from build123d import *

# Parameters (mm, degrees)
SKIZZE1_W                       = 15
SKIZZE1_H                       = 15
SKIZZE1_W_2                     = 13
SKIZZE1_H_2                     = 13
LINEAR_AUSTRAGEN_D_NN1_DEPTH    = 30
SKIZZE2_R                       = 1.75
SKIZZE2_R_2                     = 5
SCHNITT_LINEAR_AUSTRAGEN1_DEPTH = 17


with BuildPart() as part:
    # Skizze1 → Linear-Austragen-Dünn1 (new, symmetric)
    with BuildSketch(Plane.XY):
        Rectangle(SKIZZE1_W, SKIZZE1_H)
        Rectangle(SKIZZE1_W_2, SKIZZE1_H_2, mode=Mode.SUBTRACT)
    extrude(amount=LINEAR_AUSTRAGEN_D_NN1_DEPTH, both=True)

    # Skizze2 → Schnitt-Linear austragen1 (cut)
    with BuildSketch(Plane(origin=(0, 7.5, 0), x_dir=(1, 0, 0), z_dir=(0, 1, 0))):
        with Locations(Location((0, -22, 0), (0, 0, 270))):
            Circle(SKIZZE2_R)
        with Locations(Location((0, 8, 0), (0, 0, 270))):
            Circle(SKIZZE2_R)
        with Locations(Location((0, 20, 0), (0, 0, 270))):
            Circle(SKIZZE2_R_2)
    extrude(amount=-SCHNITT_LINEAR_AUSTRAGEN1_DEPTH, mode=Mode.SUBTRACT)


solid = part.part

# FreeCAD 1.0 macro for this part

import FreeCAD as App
import Part
import Sketcher
from FreeCAD import Vector

doc = App.newDocument("Part")
body = doc.addObject("PartDesign::Body", "Body")

sketch1 = body.newObject("Sketcher::SketchObject", "Sketch")
sketch1.AttachmentSupport = (doc.getObject("XY_Plane"), [""])
sketch1.MapMode = "FlatFace"
sketch1.addGeometry([
    Part.LineSegment(Vector(-8, 8, 0), Vector(-8, -8, 0)),
    Part.LineSegment(Vector(-8, -8, 0), Vector(8, -8, 0)),
    Part.LineSegment(Vector(8, -8, 0), Vector(8, 8, 0)),
    Part.LineSegment(Vector(8, 8, 0), Vector(-8, 8, 0)),
    Part.LineSegment(Vector(6, -6, 0), Vector(-6, -6, 0)),
    Part.LineSegment(Vector(-6, -6, 0), Vector(-6, 6, 0)),
    Part.LineSegment(Vector(-6, 6, 0), Vector(6, 6, 0)),
    Part.LineSegment(Vector(6, 6, 0), Vector(6, -6, 0)),
], False)
sketch1.addConstraint([
    Sketcher.Constraint("Coincident", 0, 2, 1, 1),
    Sketcher.Constraint("Coincident", 1, 2, 2, 1),
    Sketcher.Constraint("Coincident", 2, 2, 3, 1),
    Sketcher.Constraint("Coincident", 3, 2, 0, 1),
    Sketcher.Constraint("Coincident", 4, 2, 5, 1),
    Sketcher.Constraint("Coincident", 5, 2, 6, 1),
    Sketcher.Constraint("Coincident", 6, 2, 7, 1),
    Sketcher.Constraint("Coincident", 7, 2, 4, 1),
    Sketcher.Constraint("Vertical", 0),
    Sketcher.Constraint("Horizontal", 1),
    Sketcher.Constraint("Vertical", 2),
    Sketcher.Constraint("Horizontal", 3),
    Sketcher.Constraint("Horizontal", 4),
    Sketcher.Constraint("Vertical", 5),
    Sketcher.Constraint("Horizontal", 6),
    Sketcher.Constraint("Vertical", 7),
    Sketcher.Constraint("Symmetric", 0, 2, 2, 2, -1, 1),
    Sketcher.Constraint("Symmetric", 4, 2, 6, 2, -1, 1),
    Sketcher.Constraint("Equal", 3, 0),
    Sketcher.Constraint("Equal", 6, 5),
    Sketcher.Constraint("DistanceX", 1, 1, 1, 2, 15.0),
    Sketcher.Constraint("DistanceX", 4, 2, 4, 1, 13.0),
])
pad1 = body.newObject("PartDesign::Pad", "Pad")
pad1.Profile = sketch1
pad1.Length = 60
pad1.Midplane = True

sketch2 = body.newObject("Sketcher::SketchObject", "Sketch001")
sketch2.AttachmentSupport = (doc.getObject("XZ_Plane"), [""])
sketch2.MapMode = "FlatFace"
sketch2.AttachmentOffset = App.Placement(Vector(0, 0, -7.5), App.Rotation())
sketch2.addGeometry([
    Part.Circle(Vector(0, 22, 0), Vector(0, 0, 1), 1.8),
    Part.Circle(Vector(0, -8, 0), Vector(0, 0, 1), 1.8),
    Part.Circle(Vector(0, -20, 0), Vector(0, 0, 1), 5),
], False)
sketch2.addConstraint([
    Sketcher.Constraint("Equal", 0, 1),
    Sketcher.Constraint("PointOnObject", 0, 3, -2),
    Sketcher.Constraint("PointOnObject", 1, 3, -2),
    Sketcher.Constraint("PointOnObject", 2, 3, -2),
    Sketcher.Constraint("Diameter", 2, 10.0),
    Sketcher.Constraint("Diameter", 0, 3.5),
    Sketcher.Constraint("DistanceY", -1, 1, 0, 3, 22.0),
    Sketcher.Constraint("DistanceY", 1, 3, -1, 1, 8.0),
    Sketcher.Constraint("DistanceY", 2, 3, -1, 1, 20.0),
])
pocket1 = body.newObject("PartDesign::Pocket", "Pocket")
pocket1.Profile = sketch2
pocket1.Length = 17
pocket1.Reversed = True

doc.recompute()
